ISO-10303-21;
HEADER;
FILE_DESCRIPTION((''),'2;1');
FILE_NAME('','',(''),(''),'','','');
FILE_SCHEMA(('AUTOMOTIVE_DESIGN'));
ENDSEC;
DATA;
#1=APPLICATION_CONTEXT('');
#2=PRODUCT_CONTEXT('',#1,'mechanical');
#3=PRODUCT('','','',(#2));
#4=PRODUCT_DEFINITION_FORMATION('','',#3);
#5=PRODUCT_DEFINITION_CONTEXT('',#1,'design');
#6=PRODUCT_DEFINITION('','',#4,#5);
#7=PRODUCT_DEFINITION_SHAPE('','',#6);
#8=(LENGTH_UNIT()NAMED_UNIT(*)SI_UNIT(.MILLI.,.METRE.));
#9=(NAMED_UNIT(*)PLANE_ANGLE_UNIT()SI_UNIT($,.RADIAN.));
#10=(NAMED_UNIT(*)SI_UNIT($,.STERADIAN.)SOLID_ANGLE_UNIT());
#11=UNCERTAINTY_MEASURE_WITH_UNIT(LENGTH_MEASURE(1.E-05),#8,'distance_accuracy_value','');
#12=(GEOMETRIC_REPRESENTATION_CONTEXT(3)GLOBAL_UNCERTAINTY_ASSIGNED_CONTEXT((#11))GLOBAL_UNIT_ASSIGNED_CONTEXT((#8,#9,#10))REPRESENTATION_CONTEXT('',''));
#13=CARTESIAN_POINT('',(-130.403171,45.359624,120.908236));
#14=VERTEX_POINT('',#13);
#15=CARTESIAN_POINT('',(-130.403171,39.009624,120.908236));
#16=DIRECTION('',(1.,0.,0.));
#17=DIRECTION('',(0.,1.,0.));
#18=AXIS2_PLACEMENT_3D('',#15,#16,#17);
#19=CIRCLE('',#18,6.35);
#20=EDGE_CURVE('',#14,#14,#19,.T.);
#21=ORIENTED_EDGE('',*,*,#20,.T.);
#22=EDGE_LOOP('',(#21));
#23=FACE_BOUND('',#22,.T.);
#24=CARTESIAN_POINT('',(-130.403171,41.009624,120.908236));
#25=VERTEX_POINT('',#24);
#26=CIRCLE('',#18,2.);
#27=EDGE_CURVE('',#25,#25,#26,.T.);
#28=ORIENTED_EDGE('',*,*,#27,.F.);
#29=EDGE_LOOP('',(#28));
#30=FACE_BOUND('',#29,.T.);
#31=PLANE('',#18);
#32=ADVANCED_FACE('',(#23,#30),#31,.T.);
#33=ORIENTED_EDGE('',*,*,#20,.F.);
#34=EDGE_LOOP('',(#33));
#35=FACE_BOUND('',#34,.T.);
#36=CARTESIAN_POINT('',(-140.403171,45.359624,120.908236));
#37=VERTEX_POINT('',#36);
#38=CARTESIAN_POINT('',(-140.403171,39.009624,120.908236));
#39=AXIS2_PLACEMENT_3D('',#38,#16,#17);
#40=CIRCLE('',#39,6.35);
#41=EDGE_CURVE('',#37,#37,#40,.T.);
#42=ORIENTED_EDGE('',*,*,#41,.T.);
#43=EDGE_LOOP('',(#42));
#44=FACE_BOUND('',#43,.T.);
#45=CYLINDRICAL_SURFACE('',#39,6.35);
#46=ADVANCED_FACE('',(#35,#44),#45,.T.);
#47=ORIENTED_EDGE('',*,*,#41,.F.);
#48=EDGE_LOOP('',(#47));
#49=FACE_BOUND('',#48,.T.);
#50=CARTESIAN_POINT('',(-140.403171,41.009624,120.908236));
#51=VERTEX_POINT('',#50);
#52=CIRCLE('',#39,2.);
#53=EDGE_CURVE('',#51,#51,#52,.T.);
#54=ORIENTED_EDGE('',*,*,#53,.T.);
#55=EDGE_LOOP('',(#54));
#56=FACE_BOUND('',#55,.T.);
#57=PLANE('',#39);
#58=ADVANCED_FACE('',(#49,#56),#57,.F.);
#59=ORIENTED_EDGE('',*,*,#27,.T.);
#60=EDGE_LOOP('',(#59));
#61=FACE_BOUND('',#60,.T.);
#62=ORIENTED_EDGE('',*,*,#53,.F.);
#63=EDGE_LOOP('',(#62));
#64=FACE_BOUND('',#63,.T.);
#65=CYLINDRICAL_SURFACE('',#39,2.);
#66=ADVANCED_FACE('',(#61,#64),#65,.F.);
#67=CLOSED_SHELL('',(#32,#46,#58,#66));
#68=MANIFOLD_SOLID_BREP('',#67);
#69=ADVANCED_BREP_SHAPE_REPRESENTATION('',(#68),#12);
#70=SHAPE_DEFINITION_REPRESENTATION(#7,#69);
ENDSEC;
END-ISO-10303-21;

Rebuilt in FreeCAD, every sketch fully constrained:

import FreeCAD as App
import Part
import Sketcher
from FreeCAD import Vector

doc = App.newDocument("Part")
body = doc.addObject("PartDesign::Body", "Body")

sketch1 = doc.addObject("Sketcher::SketchObject", "Sketch")
body.addObject(sketch1)
sketch1.AttachmentSupport = (doc.YZ_Plane, [""])
sketch1.MapMode = "FlatFace"
sketch1.AttachmentOffset = App.Placement(Vector(0, 0, -130.403171), App.Rotation())
sketch1.addGeometry([
    Part.Circle(Vector(39.009624, 120.908236, 0), Vector(0, 0, 1), 6.35),
    Part.Circle(Vector(39.009624, 120.908236, 0), Vector(0, 0, 1), 2),
], False)
sketch1.addConstraint([
    Sketcher.Constraint("Coincident", 1, 3, 0, 3),
    Sketcher.Constraint("Diameter", 1, 4.0),
    Sketcher.Constraint("Diameter", 0, 12.7),
    Sketcher.Constraint("DistanceX", -1, 1, 0, 3, 39.009624),
    Sketcher.Constraint("DistanceY", -1, 1, 0, 3, 120.908236),
])
pad1 = doc.addObject("PartDesign::Pad", "Pad")
body.addObject(pad1)
pad1.Profile = sketch1
pad1.Length = 10
pad1.Reversed = True

doc.recompute()
